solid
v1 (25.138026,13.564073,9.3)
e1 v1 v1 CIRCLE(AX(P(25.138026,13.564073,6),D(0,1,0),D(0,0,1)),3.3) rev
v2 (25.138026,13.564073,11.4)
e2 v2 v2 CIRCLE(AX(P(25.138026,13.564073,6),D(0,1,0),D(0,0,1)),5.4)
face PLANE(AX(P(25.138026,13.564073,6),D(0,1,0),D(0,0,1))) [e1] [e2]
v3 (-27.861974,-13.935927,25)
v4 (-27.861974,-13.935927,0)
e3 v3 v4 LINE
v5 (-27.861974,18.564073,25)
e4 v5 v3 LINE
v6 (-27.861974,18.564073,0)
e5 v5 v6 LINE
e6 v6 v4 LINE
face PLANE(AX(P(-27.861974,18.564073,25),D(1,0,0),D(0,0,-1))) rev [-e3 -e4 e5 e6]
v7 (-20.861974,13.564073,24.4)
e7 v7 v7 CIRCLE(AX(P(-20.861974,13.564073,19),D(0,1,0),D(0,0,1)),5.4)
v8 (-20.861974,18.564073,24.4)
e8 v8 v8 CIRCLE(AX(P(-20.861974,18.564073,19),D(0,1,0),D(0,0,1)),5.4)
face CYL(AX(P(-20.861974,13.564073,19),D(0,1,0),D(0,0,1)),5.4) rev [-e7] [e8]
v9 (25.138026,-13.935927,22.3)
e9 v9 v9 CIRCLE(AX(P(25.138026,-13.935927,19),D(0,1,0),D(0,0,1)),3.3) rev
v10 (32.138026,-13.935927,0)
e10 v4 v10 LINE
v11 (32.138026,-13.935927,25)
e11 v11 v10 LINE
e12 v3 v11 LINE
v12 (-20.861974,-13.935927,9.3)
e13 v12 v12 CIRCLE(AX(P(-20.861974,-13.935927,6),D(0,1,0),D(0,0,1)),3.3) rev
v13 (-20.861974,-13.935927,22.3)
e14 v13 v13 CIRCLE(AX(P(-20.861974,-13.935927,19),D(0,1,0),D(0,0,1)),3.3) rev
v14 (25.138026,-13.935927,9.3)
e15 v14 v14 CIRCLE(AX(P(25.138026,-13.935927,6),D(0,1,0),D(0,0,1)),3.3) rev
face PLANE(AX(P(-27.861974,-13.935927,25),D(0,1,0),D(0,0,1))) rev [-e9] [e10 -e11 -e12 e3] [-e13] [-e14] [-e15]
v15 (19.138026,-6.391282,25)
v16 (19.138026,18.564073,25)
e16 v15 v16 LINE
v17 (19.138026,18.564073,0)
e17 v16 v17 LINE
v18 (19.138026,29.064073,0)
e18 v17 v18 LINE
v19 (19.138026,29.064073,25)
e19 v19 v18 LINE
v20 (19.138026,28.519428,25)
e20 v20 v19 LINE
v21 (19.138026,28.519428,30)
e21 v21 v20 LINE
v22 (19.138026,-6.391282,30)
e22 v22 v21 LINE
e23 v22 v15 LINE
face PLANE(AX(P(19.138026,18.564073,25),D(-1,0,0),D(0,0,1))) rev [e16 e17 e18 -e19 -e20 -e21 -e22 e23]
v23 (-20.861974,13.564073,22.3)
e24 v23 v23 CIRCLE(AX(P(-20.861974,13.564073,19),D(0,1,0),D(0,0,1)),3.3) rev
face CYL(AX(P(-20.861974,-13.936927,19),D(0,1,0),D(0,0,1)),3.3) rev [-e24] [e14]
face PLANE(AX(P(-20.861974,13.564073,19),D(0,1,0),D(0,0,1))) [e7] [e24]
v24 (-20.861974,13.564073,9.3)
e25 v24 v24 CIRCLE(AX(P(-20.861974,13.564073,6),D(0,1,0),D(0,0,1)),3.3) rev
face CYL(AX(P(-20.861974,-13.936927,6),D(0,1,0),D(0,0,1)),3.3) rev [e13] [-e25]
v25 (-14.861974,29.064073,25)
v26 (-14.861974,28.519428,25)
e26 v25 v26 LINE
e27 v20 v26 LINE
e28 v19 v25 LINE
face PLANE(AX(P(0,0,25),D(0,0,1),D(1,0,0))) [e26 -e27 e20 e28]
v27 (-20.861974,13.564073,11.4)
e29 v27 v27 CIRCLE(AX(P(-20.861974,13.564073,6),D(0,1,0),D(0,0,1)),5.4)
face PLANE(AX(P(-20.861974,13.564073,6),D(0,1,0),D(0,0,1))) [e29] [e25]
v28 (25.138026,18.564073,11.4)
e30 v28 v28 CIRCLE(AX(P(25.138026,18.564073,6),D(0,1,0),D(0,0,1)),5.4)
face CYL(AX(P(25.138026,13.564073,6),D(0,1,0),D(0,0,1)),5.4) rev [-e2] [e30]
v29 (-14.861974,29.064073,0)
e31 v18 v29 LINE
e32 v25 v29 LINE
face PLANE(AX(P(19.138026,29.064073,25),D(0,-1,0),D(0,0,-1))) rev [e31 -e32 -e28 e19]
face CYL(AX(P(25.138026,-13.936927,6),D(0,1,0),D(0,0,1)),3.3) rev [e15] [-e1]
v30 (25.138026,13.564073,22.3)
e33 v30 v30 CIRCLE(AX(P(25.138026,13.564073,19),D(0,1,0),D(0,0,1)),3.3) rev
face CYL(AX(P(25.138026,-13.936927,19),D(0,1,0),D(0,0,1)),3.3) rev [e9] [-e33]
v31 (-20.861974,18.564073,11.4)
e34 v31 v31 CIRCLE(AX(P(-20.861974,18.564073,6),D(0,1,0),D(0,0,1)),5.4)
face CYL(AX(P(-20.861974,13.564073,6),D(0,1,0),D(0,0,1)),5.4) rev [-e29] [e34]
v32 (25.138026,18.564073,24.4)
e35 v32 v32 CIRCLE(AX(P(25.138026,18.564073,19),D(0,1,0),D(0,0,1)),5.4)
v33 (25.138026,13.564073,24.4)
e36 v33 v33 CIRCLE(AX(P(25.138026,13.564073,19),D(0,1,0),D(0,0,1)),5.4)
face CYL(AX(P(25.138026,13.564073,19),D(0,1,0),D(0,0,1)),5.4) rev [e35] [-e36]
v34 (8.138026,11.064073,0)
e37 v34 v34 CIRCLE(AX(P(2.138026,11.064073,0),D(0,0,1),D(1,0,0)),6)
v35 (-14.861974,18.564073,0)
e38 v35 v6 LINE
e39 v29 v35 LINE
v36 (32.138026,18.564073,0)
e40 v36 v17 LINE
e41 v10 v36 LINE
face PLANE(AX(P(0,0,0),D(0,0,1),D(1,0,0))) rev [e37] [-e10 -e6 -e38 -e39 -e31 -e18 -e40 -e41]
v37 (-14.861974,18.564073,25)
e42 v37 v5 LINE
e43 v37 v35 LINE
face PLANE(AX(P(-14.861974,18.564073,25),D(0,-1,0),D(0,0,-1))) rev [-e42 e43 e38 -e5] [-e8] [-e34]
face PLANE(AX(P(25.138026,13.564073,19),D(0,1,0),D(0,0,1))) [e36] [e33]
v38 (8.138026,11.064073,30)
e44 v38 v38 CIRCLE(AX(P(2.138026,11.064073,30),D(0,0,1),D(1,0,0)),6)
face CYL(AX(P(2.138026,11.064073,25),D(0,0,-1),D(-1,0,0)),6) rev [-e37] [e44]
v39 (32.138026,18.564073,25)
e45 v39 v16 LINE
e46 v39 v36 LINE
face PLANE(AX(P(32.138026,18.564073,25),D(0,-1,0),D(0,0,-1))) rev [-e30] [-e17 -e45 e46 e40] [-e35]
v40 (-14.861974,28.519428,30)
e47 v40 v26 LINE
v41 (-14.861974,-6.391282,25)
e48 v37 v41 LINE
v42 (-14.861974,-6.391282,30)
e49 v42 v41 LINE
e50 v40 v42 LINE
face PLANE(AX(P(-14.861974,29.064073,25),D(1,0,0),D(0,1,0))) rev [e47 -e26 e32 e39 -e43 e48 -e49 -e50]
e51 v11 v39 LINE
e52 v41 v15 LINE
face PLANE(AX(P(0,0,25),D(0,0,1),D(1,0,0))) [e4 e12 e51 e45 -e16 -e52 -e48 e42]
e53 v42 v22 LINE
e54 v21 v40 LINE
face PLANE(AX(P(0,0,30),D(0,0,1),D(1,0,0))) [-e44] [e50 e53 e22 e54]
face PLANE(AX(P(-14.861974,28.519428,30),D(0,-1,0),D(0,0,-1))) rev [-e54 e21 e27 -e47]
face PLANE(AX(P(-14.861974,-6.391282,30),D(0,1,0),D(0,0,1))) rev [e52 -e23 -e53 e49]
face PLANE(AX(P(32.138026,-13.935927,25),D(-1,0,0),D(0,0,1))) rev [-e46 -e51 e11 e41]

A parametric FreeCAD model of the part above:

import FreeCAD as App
import Part
import Sketcher
from FreeCAD import Vector
Q = App.Units.Quantity

doc = App.newDocument("Part")
params = doc.addObject("Spreadsheet::Sheet", "Params")
for row, (alias, value) in enumerate([
    ("sketch1_diameter", "12 mm"),
    ("sketch1_width", "60 mm"),
    ("sketch1_width2", "13 mm"),
    ("sketch1_height", "32.5 mm"),
    ("sketch1_height2", "10.5 mm"),
    ("pad1_length", "25 mm"),
    ("sketch2_diameter", "6.6 mm"),
    ("sketch3_diameter", "6.6 mm"),
    ("sketch4_diameter", "6.6 mm"),
    ("sketch5_diameter", "6.6 mm"),
    ("sketch6_diameter", "10.8 mm"),
    ("pocket5_length", "5 mm"),
    ("sketch7_diameter", "12 mm"),
    ("sketch7_width", "34 mm"),
    ("pad2_length", "5 mm"),
], start=1):
    params.set(f"A{row}", alias)
    params.set(f"B{row}", "=" + value)
    params.setAlias(f"B{row}", alias)

body = doc.addObject("PartDesign::Body", "Body")

sketch1 = body.newObject("Sketcher::SketchObject", "Sketch")
sketch1.AttachmentSupport = (doc.getObject("XY_Plane"), [""])
sketch1.MapMode = "FlatFace"
sketch1.addGeometry(Part.LineSegment(Vector(-28, -14, 0), Vector(32, -14, 0)), False)
sketch1.addGeometry(Part.LineSegment(Vector(32, -14, 0), Vector(32, 19, 0)), False)
sketch1.addGeometry(Part.LineSegment(Vector(32, 19, 0), Vector(19, 19, 0)), False)
sketch1.addGeometry(Part.LineSegment(Vector(19, 19, 0), Vector(19, 29, 0)), False)
sketch1.addGeometry(Part.LineSegment(Vector(19, 29, 0), Vector(-15, 29, 0)), False)
sketch1.addGeometry(Part.LineSegment(Vector(-15, 29, 0), Vector(-15, 19, 0)), False)
sketch1.addGeometry(Part.LineSegment(Vector(-15, 19, 0), Vector(-28, 19, 0)), False)
sketch1.addGeometry(Part.LineSegment(Vector(-28, 19, 0), Vector(-28, -14, 0)), False)
sketch1.addGeometry(Part.Circle(Vector(2, 11, 0), Vector(0, 0, 1), 6), False)
sketch1.addConstraint(Sketcher.Constraint("Coincident", 0, 2, 1, 1))
sketch1.addConstraint(Sketcher.Constraint("Coincident", 1, 2, 2, 1))
sketch1.addConstraint(Sketcher.Constraint("Coincident", 2, 2, 3, 1))
sketch1.addConstraint(Sketcher.Constraint("Coincident", 3, 2, 4, 1))
sketch1.addConstraint(Sketcher.Constraint("Coincident", 4, 2, 5, 1))
sketch1.addConstraint(Sketcher.Constraint("Coincident", 5, 2, 6, 1))
sketch1.addConstraint(Sketcher.Constraint("Coincident", 6, 2, 7, 1))
sketch1.addConstraint(Sketcher.Constraint("Coincident", 7, 2, 0, 1))
sketch1.addConstraint(Sketcher.Constraint("Horizontal", 0))
sketch1.addConstraint(Sketcher.Constraint("Vertical", 1))
sketch1.addConstraint(Sketcher.Constraint("Horizontal", 2))
sketch1.addConstraint(Sketcher.Constraint("Vertical", 3))
sketch1.addConstraint(Sketcher.Constraint("Horizontal", 4))
sketch1.addConstraint(Sketcher.Constraint("Vertical", 5))
sketch1.addConstraint(Sketcher.Constraint("Horizontal", 6))
sketch1.addConstraint(Sketcher.Constraint("Vertical", 7))
sketch1.addConstraint(Sketcher.Constraint("Horizontal", 2, 2, 5, 2))
sketch1.addConstraint(Sketcher.Constraint("Equal", 2, 6))
sketch1.addConstraint(Sketcher.Constraint("Diameter", 8, Q("12 mm")))
sketch1.addConstraint(Sketcher.Constraint("DistanceX", 0, 1, 0, 2, Q("60 mm")))
sketch1.addConstraint(Sketcher.Constraint("DistanceX", 2, 2, 2, 1, Q("13 mm")))
sketch1.addConstraint(Sketcher.Constraint("DistanceY", 1, 1, 1, 2, Q("32.5 mm")))
sketch1.addConstraint(Sketcher.Constraint("DistanceY", 3, 1, 3, 2, Q("10.5 mm")))
sketch1.addConstraint(Sketcher.Constraint("DistanceX", 8, 3, 0, 2, Q("30 mm")))
sketch1.addConstraint(Sketcher.Constraint("DistanceY", 0, 2, 8, 3, Q("25 mm")))
sketch1.addConstraint(Sketcher.Constraint("DistanceX", -1, 1, 8, 3, Q("2.138026 mm")))
sketch1.addConstraint(Sketcher.Constraint("DistanceY", -1, 1, 8, 3, Q("11.064073 mm")))
sketch1.setExpression("Constraints[18]", "Params.sketch1_diameter")
sketch1.setExpression("Constraints[19]", "Params.sketch1_width")
sketch1.setExpression("Constraints[20]", "Params.sketch1_width2")
sketch1.setExpression("Constraints[21]", "Params.sketch1_height")
sketch1.setExpression("Constraints[22]", "Params.sketch1_height2")
pad1 = body.newObject("PartDesign::Pad", "Pad")
pad1.Profile = sketch1
pad1.setExpression("Length", "Params.pad1_length")

sketch2 = body.newObject("Sketcher::SketchObject", "Sketch001")
sketch2.AttachmentSupport = (doc.getObject("XZ_Plane"), [""])
sketch2.MapMode = "FlatFace"
sketch2.AttachmentOffset = App.Placement(Vector(0, 0, -18.564073), App.Rotation())
sketch2.addGeometry(Part.Circle(Vector(25.1, 19, 0), Vector(0, 0, 1), 3.3), False)
sketch2.addConstraint(Sketcher.Constraint("Diameter", 0, Q("6.6 mm")))
sketch2.addConstraint(Sketcher.Constraint("DistanceY", -1, 1, 0, 3, Q("19 mm")))
sketch2.addConstraint(Sketcher.Constraint("DistanceX", -1, 1, 0, 3, Q("25.138026 mm")))
sketch2.setExpression("Constraints[0]", "Params.sketch2_diameter")
pocket1 = body.newObject("PartDesign::Pocket", "Pocket")
pocket1.Profile = sketch2
pocket1.Type = "UpToFirst"
pocket1.Reversed = True

sketch3 = body.newObject("Sketcher::SketchObject", "Sketch002")
sketch3.AttachmentSupport = (doc.getObject("XZ_Plane"), [""])
sketch3.MapMode = "FlatFace"
sketch3.AttachmentOffset = App.Placement(Vector(0, 0, -18.564073), App.Rotation())
sketch3.addGeometry(Part.Circle(Vector(25.1, 6, 0), Vector(0, 0, 1), 3.3), False)
sketch3.addConstraint(Sketcher.Constraint("Diameter", 0, Q("6.6 mm")))
sketch3.addConstraint(Sketcher.Constraint("DistanceY", -1, 1, 0, 3, Q("6 mm")))
sketch3.addConstraint(Sketcher.Constraint("DistanceX", -1, 1, 0, 3, Q("25.138026 mm")))
sketch3.setExpression("Constraints[0]", "Params.sketch3_diameter")
pocket2 = body.newObject("PartDesign::Pocket", "Pocket001")
pocket2.Profile = sketch3
pocket2.Type = "UpToFirst"
pocket2.Reversed = True

sketch4 = body.newObject("Sketcher::SketchObject", "Sketch003")
sketch4.AttachmentSupport = (doc.getObject("XZ_Plane"), [""])
sketch4.MapMode = "FlatFace"
sketch4.AttachmentOffset = App.Placement(Vector(0, 0, -18.564073), App.Rotation())
sketch4.addGeometry(Part.Circle(Vector(-20.9, 19, 0), Vector(0, 0, 1), 3.3), False)
sketch4.addConstraint(Sketcher.Constraint("Diameter", 0, Q("6.6 mm")))
sketch4.addConstraint(Sketcher.Constraint("DistanceY", -1, 1, 0, 3, Q("19 mm")))
sketch4.addConstraint(Sketcher.Constraint("DistanceX", 0, 3, -1, 1, Q("20.861974 mm")))
sketch4.setExpression("Constraints[0]", "Params.sketch4_diameter")
pocket3 = body.newObject("PartDesign::Pocket", "Pocket002")
pocket3.Profile = sketch4
pocket3.Type = "UpToFirst"
pocket3.Reversed = True

sketch5 = body.newObject("Sketcher::SketchObject", "Sketch004")
sketch5.AttachmentSupport = (doc.getObject("XZ_Plane"), [""])
sketch5.MapMode = "FlatFace"
sketch5.AttachmentOffset = App.Placement(Vector(0, 0, -18.564073), App.Rotation())
sketch5.addGeometry(Part.Circle(Vector(-20.9, 6, 0), Vector(0, 0, 1), 3.3), False)
sketch5.addConstraint(Sketcher.Constraint("Diameter", 0, Q("6.6 mm")))
sketch5.addConstraint(Sketcher.Constraint("DistanceY", -1, 1, 0, 3, Q("6 mm")))
sketch5.addConstraint(Sketcher.Constraint("DistanceX", 0, 3, -1, 1, Q("20.861974 mm")))
sketch5.setExpression("Constraints[0]", "Params.sketch5_diameter")
pocket4 = body.newObject("PartDesign::Pocket", "Pocket003")
pocket4.Profile = sketch5
pocket4.Type = "UpToFirst"
pocket4.Reversed = True

sketch6 = body.newObject("Sketcher::SketchObject", "Sketch005")
sketch6.AttachmentSupport = (doc.getObject("XZ_Plane"), [""])
sketch6.MapMode = "FlatFace"
sketch6.AttachmentOffset = App.Placement(Vector(0, 0, -18.564073), App.Rotation())
sketch6.addGeometry(Part.Circle(Vector(25, 19, 0), Vector(0, 0, 1), 5), False)
sketch6.addGeometry(Part.Circle(Vector(25, 6, 0), Vector(0, 0, 1), 5), False)
sketch6.addGeometry(Part.Circle(Vector(-21, 6, 0), Vector(0, 0, 1), 5), False)
sketch6.addGeometry(Part.Circle(Vector(-21, 19, 0), Vector(0, 0, 1), 5), False)
sketch6.addConstraint(Sketcher.Constraint("Equal", 0, 1))
sketch6.addConstraint(Sketcher.Constraint("Equal", 1, 2))
sketch6.addConstraint(Sketcher.Constraint("Equal", 2, 3))
sketch6.addConstraint(Sketcher.Constraint("Horizontal", 1, 3, 2, 3))
sketch6.addConstraint(Sketcher.Constraint("Horizontal", 0, 3, 3, 3))
sketch6.addConstraint(Sketcher.Constraint("Vertical", 0, 3, 1, 3))
sketch6.addConstraint(Sketcher.Constraint("Vertical", 2, 3, 3, 3))
sketch6.addConstraint(Sketcher.Constraint("Diameter", 0, Q("10.8 mm")))
sketch6.addConstraint(Sketcher.Constraint("DistanceY", -1, 1, 0, 3, Q("19 mm")))
sketch6.addConstraint(Sketcher.Constraint("DistanceY", -1, 1, 1, 3, Q("6 mm")))
sketch6.addConstraint(Sketcher.Constraint("DistanceX", 2, 3, 1, 3, Q("46 mm")))
sketch6.addConstraint(Sketcher.Constraint("DistanceX", -1, 1, 0, 3, Q("25.138026 mm")))
sketch6.setExpression("Constraints[7]", "Params.sketch6_diameter")
pocket5 = body.newObject("PartDesign::Pocket", "Pocket004")
pocket5.Profile = sketch6
pocket5.setExpression("Length", "Params.pocket5_length")
pocket5.Reversed = True

sketch7 = body.newObject("Sketcher::SketchObject", "Sketch006")
sketch7.AttachmentSupport = (doc.getObject("XY_Plane"), [""])
sketch7.MapMode = "FlatFace"
sketch7.AttachmentOffset = App.Placement(Vector(0, 0, 25), App.Rotation())
sketch7.addGeometry(Part.LineSegment(Vector(-15, 29, 0), Vector(-15, -6, 0)), False)
sketch7.addGeometry(Part.LineSegment(Vector(-15, -6, 0), Vector(19, -6, 0)), False)
sketch7.addGeometry(Part.LineSegment(Vector(19, -6, 0), Vector(19, 29, 0)), False)
sketch7.addGeometry(Part.LineSegment(Vector(19, 29, 0), Vector(-15, 29, 0)), False)
sketch7.addGeometry(Part.Circle(Vector(2, 11, 0), Vector(0, 0, 1), 6), False)
sketch7.addConstraint(Sketcher.Constraint("Coincident", 0, 2, 1, 1))
sketch7.addConstraint(Sketcher.Constraint("Coincident", 1, 2, 2, 1))
sketch7.addConstraint(Sketcher.Constraint("Coincident", 2, 2, 3, 1))
sketch7.addConstraint(Sketcher.Constraint("Coincident", 3, 2, 0, 1))
sketch7.addConstraint(Sketcher.Constraint("Vertical", 0))
sketch7.addConstraint(Sketcher.Constraint("Horizontal", 1))
sketch7.addConstraint(Sketcher.Constraint("Vertical", 2))
sketch7.addConstraint(Sketcher.Constraint("Horizontal", 3))
sketch7.addConstraint(Sketcher.Constraint("Diameter", 4, Q("12 mm")))
sketch7.addConstraint(Sketcher.Constraint("DistanceX", 1, 1, 1, 2, Q("34 mm")))
sketch7.addConstraint(Sketcher.Constraint("DistanceX", 0, 2, 4, 3, Q("17 mm")))
sketch7.addConstraint(Sketcher.Constraint("DistanceY", 0, 2, 0, 1, Q("34.910709 mm")))
sketch7.addConstraint(Sketcher.Constraint("DistanceY", 0, 2, -1, 1, Q("6.391282 mm")))
sketch7.addConstraint(Sketcher.Constraint("DistanceX", -1, 1, 4, 3, Q("2.138026 mm")))
sketch7.addConstraint(Sketcher.Constraint("DistanceY", -1, 1, 4, 3, Q("11.064073 mm")))
sketch7.setExpression("Constraints[8]", "Params.sketch7_diameter")
sketch7.setExpression("Constraints[9]", "Params.sketch7_width")
pad2 = body.newObject("PartDesign::Pad", "Pad001")
pad2.Profile = sketch7
pad2.setExpression("Length", "Params.pad2_length")

doc.recompute()
